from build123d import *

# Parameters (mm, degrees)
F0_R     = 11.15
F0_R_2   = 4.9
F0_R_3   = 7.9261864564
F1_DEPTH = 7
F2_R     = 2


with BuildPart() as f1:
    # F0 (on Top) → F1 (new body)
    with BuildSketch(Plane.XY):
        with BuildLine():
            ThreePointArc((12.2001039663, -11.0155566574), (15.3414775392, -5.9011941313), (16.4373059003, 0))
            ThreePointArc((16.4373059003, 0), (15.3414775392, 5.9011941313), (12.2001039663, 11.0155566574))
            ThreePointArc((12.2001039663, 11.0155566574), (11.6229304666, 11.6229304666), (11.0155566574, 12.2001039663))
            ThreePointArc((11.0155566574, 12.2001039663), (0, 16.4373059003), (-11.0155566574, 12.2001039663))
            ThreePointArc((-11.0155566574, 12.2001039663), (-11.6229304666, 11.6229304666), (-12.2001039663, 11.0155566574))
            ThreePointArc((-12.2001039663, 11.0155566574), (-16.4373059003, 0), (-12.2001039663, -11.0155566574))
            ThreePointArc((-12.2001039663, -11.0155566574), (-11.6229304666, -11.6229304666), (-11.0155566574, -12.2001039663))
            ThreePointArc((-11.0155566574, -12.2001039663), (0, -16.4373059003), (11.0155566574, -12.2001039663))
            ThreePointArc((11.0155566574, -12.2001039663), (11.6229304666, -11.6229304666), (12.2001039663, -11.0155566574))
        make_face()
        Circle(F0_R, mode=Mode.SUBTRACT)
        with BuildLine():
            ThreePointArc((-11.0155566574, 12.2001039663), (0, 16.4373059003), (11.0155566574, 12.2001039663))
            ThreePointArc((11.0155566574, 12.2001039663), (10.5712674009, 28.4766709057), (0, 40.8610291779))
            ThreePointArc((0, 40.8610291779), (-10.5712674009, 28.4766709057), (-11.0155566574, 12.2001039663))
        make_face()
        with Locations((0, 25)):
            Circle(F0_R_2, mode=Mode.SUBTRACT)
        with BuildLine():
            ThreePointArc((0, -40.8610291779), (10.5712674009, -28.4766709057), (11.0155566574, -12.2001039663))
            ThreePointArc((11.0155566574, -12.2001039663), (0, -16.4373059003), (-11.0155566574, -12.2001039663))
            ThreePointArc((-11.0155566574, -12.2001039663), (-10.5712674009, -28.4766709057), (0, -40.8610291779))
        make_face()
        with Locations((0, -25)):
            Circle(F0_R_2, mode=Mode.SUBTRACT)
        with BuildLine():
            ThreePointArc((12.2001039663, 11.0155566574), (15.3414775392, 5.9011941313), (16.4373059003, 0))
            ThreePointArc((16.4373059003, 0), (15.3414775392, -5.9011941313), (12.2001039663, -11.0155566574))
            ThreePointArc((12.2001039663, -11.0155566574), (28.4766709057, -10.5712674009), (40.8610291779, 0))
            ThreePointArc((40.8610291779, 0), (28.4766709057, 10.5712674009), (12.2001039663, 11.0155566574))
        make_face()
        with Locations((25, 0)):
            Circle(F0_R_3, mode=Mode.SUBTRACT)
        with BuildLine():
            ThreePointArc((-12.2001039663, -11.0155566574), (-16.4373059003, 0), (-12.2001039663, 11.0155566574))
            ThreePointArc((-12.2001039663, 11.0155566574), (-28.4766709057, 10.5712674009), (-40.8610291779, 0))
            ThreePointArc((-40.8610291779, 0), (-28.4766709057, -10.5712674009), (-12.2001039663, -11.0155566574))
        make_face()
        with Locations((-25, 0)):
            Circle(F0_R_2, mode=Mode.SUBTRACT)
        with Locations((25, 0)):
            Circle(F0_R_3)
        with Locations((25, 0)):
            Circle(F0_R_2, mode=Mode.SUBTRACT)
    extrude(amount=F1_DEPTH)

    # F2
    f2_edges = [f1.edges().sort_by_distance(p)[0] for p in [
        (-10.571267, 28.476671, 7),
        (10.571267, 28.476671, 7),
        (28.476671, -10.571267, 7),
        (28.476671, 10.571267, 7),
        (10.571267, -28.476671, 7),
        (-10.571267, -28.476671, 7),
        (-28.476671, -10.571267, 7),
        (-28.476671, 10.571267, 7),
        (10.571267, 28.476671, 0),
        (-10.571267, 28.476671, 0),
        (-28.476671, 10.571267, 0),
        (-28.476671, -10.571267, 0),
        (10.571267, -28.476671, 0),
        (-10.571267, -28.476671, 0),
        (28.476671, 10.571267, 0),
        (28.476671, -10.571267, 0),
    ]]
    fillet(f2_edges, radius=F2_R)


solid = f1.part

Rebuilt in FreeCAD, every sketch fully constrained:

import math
import FreeCAD as App
import Part
import Sketcher


def edges_at(feature, points):
    """Names of the edges that pass closest to the given points."""
    edges = feature.Shape.Edges
    near = lambda p: min(range(len(edges)), key=lambda i: edges[i].distToShape(Part.Vertex(*p))[0])
    return sorted({f"Edge{near(p) + 1}" for p in points})

doc = App.newDocument("Part")
body = doc.addObject("PartDesign::Body", "Body")

# Sketch on XY plane
sketch1 = body.newObject("Sketcher::SketchObject", "Sketch")
sketch1.AttachmentSupport = (doc.getObject("XY_Plane"), [""])
sketch1.MapMode = "FlatFace"
sketch1.addGeometry([
    Part.ArcOfCircle(Part.Circle(App.Vector(0, 0, 0), App.Vector(0, 0, 1), 16.4), math.radians(-47.92), math.radians(-42.08)),  # 0
    Part.ArcOfCircle(Part.Circle(App.Vector(19.7, 12.2, 0), App.Vector(0, 0, 1), 24.4), math.radians(-108), math.radians(-30)),  # 1
    Part.ArcOfCircle(Part.Circle(App.Vector(19.7, -12.2, 0), App.Vector(0, 0, 1), 24.4), math.radians(30), math.radians(108)),  # 2
    Part.ArcOfCircle(Part.Circle(App.Vector(0, 0, 0), App.Vector(0, 0, 1), 16.4), math.radians(42.08), math.radians(47.92)),  # 3
    Part.ArcOfCircle(Part.Circle(App.Vector(-12.2, 19.7, 0), App.Vector(0, 0, 1), 24.4), math.radians(-18), math.radians(60)),  # 4
    Part.ArcOfCircle(Part.Circle(App.Vector(12.2, 19.7, 0), App.Vector(0, 0, 1), 24.4), math.radians(120), math.radians(198)),  # 5
    Part.ArcOfCircle(Part.Circle(App.Vector(0, 0, 0), App.Vector(0, 0, 1), 16.4), math.radians(132.08), math.radians(137.92)),  # 6
    Part.ArcOfCircle(Part.Circle(App.Vector(-19.7, -12.2, 0), App.Vector(0, 0, 1), 24.4), math.radians(72), math.radians(150)),  # 7
    Part.ArcOfCircle(Part.Circle(App.Vector(-19.7, 12.2, 0), App.Vector(0, 0, 1), 24.4), math.radians(-150), math.radians(-72)),  # 8
    Part.ArcOfCircle(Part.Circle(App.Vector(0, 0, 0), App.Vector(0, 0, 1), 16.4), math.radians(-137.92), math.radians(-132.08)),  # 9
    Part.ArcOfCircle(Part.Circle(App.Vector(12.2, -19.7, 0), App.Vector(0, 0, 1), 24.4), math.radians(162), math.radians(240)),  # 10
    Part.ArcOfCircle(Part.Circle(App.Vector(-12.2, -19.7, 0), App.Vector(0, 0, 1), 24.4), math.radians(-60), math.radians(18)),  # 11
    Part.Circle(App.Vector(0, -25, 0), App.Vector(0, 0, 1), 4.9),  # 12
    Part.Circle(App.Vector(-25, 0, 0), App.Vector(0, 0, 1), 4.9),  # 13
    Part.Circle(App.Vector(0, 0, 0), App.Vector(0, 0, 1), 11.2),  # 14
    Part.Circle(App.Vector(25, 0, 0), App.Vector(0, 0, 1), 4.9),  # 15
    Part.Circle(App.Vector(0, 25, 0), App.Vector(0, 0, 1), 4.9),  # 16
], False)
sketch1.addConstraint([
    Sketcher.Constraint("Coincident", 0, 2, 1, 1),
    Sketcher.Constraint("Coincident", 1, 2, 2, 1),
    Sketcher.Constraint("Coincident", 2, 2, 3, 1),
    Sketcher.Constraint("Coincident", 3, 2, 4, 1),
    Sketcher.Constraint("Coincident", 4, 2, 5, 1),
    Sketcher.Constraint("Coincident", 5, 2, 6, 1),
    Sketcher.Constraint("Coincident", 6, 2, 7, 1),
    Sketcher.Constraint("Coincident", 7, 2, 8, 1),
    Sketcher.Constraint("Coincident", 8, 2, 9, 1),
    Sketcher.Constraint("Coincident", 9, 2, 10, 1),
    Sketcher.Constraint("Coincident", 10, 2, 11, 1),
    Sketcher.Constraint("Coincident", 11, 2, 0, 1),
    Sketcher.Constraint("Coincident", 0, 3, -1, 1),
    Sketcher.Constraint("Coincident", 3, 3, -1, 1),
    Sketcher.Constraint("Coincident", 6, 3, -1, 1),
    Sketcher.Constraint("Coincident", 9, 3, -1, 1),
    Sketcher.Constraint("Coincident", 14, 3, -1, 1),
    Sketcher.Constraint("Equal", 1, 2),
    Sketcher.Constraint("Equal", 0, 3),
    Sketcher.Constraint("Equal", 2, 4),
    Sketcher.Constraint("Equal", 4, 5),
    Sketcher.Constraint("Equal", 3, 6),
    Sketcher.Constraint("Equal", 5, 7),
    Sketcher.Constraint("Equal", 7, 8),
    Sketcher.Constraint("Equal", 6, 9),
    Sketcher.Constraint("Equal", 8, 10),
    Sketcher.Constraint("Equal", 10, 11),
    Sketcher.Constraint("Equal", 12, 13),
    Sketcher.Constraint("Equal", 13, 15),
    Sketcher.Constraint("Equal", 15, 16),
    Sketcher.Constraint("Symmetric", 1, 3, 7, 3, -1, 1),
    Sketcher.Constraint("Symmetric", 2, 3, 8, 3, -1, 1),
    Sketcher.Constraint("Symmetric", 4, 3, 10, 3, -1, 1),
    Sketcher.Constraint("Symmetric", 5, 3, 11, 3, -1, 1),
    Sketcher.Constraint("Symmetric", 13, 3, 15, 3, -1, 1),
    Sketcher.Constraint("Symmetric", 12, 3, 16, 3, -1, 1),
    Sketcher.Constraint("Symmetric", 4, 3, 5, 3, -2),
    Sketcher.Constraint("Symmetric", 2, 3, 7, 3, -2),
    Sketcher.Constraint("PointOnObject", 12, 3, -2),
    Sketcher.Constraint("PointOnObject", 13, 3, -1),
    Sketcher.Constraint("Diameter", 12, 9.8),
    Sketcher.Constraint("Diameter", 14, 22.3),
    Sketcher.Constraint("DistanceY", 12, 3, -1, 1, 25.0),
    Sketcher.Constraint("DistanceX", 13, 3, -1, 1, 25.0),
    Sketcher.Constraint("Radius", 0, 16.437306),
    Sketcher.Constraint("Radius", 1, 24.437213),
    Sketcher.Constraint("DistanceX", -1, 1, 1, 2, 40.861029),
    Sketcher.Constraint("DistanceY", -1, 1, 4, 2, 40.861029),
    Sketcher.Constraint("DistanceX", 4, 3, 1, 3, 31.948881),
    Sketcher.Constraint("DistanceY", 2, 3, 4, 3, 31.948881),
])
pad1 = body.newObject("PartDesign::Pad", "Pad")
pad1.Profile = sketch1
pad1.Length = 7
doc.recompute()

fillet = body.newObject("PartDesign::Fillet", "Fillet")
fillet.Base = (pad1, edges_at(pad1, [
    (-10.571, 28.477, 7),
    (10.571, 28.477, 7),
    (28.477, -10.571, 7),
    (28.477, 10.571, 7),
    (10.571, -28.477, 7),
    (-10.571, -28.477, 7),
    (-28.477, -10.571, 7),
    (-28.477, 10.571, 7),
    (10.571, 28.477, 0),
    (-10.571, 28.477, 0),
    (-28.477, 10.571, 0),
    (-28.477, -10.571, 0),
    (10.571, -28.477, 0),
    (-10.571, -28.477, 0),
    (28.477, 10.571, 0),
    (28.477, -10.571, 0),
]))
fillet.Radius = 2

doc.recompute()
